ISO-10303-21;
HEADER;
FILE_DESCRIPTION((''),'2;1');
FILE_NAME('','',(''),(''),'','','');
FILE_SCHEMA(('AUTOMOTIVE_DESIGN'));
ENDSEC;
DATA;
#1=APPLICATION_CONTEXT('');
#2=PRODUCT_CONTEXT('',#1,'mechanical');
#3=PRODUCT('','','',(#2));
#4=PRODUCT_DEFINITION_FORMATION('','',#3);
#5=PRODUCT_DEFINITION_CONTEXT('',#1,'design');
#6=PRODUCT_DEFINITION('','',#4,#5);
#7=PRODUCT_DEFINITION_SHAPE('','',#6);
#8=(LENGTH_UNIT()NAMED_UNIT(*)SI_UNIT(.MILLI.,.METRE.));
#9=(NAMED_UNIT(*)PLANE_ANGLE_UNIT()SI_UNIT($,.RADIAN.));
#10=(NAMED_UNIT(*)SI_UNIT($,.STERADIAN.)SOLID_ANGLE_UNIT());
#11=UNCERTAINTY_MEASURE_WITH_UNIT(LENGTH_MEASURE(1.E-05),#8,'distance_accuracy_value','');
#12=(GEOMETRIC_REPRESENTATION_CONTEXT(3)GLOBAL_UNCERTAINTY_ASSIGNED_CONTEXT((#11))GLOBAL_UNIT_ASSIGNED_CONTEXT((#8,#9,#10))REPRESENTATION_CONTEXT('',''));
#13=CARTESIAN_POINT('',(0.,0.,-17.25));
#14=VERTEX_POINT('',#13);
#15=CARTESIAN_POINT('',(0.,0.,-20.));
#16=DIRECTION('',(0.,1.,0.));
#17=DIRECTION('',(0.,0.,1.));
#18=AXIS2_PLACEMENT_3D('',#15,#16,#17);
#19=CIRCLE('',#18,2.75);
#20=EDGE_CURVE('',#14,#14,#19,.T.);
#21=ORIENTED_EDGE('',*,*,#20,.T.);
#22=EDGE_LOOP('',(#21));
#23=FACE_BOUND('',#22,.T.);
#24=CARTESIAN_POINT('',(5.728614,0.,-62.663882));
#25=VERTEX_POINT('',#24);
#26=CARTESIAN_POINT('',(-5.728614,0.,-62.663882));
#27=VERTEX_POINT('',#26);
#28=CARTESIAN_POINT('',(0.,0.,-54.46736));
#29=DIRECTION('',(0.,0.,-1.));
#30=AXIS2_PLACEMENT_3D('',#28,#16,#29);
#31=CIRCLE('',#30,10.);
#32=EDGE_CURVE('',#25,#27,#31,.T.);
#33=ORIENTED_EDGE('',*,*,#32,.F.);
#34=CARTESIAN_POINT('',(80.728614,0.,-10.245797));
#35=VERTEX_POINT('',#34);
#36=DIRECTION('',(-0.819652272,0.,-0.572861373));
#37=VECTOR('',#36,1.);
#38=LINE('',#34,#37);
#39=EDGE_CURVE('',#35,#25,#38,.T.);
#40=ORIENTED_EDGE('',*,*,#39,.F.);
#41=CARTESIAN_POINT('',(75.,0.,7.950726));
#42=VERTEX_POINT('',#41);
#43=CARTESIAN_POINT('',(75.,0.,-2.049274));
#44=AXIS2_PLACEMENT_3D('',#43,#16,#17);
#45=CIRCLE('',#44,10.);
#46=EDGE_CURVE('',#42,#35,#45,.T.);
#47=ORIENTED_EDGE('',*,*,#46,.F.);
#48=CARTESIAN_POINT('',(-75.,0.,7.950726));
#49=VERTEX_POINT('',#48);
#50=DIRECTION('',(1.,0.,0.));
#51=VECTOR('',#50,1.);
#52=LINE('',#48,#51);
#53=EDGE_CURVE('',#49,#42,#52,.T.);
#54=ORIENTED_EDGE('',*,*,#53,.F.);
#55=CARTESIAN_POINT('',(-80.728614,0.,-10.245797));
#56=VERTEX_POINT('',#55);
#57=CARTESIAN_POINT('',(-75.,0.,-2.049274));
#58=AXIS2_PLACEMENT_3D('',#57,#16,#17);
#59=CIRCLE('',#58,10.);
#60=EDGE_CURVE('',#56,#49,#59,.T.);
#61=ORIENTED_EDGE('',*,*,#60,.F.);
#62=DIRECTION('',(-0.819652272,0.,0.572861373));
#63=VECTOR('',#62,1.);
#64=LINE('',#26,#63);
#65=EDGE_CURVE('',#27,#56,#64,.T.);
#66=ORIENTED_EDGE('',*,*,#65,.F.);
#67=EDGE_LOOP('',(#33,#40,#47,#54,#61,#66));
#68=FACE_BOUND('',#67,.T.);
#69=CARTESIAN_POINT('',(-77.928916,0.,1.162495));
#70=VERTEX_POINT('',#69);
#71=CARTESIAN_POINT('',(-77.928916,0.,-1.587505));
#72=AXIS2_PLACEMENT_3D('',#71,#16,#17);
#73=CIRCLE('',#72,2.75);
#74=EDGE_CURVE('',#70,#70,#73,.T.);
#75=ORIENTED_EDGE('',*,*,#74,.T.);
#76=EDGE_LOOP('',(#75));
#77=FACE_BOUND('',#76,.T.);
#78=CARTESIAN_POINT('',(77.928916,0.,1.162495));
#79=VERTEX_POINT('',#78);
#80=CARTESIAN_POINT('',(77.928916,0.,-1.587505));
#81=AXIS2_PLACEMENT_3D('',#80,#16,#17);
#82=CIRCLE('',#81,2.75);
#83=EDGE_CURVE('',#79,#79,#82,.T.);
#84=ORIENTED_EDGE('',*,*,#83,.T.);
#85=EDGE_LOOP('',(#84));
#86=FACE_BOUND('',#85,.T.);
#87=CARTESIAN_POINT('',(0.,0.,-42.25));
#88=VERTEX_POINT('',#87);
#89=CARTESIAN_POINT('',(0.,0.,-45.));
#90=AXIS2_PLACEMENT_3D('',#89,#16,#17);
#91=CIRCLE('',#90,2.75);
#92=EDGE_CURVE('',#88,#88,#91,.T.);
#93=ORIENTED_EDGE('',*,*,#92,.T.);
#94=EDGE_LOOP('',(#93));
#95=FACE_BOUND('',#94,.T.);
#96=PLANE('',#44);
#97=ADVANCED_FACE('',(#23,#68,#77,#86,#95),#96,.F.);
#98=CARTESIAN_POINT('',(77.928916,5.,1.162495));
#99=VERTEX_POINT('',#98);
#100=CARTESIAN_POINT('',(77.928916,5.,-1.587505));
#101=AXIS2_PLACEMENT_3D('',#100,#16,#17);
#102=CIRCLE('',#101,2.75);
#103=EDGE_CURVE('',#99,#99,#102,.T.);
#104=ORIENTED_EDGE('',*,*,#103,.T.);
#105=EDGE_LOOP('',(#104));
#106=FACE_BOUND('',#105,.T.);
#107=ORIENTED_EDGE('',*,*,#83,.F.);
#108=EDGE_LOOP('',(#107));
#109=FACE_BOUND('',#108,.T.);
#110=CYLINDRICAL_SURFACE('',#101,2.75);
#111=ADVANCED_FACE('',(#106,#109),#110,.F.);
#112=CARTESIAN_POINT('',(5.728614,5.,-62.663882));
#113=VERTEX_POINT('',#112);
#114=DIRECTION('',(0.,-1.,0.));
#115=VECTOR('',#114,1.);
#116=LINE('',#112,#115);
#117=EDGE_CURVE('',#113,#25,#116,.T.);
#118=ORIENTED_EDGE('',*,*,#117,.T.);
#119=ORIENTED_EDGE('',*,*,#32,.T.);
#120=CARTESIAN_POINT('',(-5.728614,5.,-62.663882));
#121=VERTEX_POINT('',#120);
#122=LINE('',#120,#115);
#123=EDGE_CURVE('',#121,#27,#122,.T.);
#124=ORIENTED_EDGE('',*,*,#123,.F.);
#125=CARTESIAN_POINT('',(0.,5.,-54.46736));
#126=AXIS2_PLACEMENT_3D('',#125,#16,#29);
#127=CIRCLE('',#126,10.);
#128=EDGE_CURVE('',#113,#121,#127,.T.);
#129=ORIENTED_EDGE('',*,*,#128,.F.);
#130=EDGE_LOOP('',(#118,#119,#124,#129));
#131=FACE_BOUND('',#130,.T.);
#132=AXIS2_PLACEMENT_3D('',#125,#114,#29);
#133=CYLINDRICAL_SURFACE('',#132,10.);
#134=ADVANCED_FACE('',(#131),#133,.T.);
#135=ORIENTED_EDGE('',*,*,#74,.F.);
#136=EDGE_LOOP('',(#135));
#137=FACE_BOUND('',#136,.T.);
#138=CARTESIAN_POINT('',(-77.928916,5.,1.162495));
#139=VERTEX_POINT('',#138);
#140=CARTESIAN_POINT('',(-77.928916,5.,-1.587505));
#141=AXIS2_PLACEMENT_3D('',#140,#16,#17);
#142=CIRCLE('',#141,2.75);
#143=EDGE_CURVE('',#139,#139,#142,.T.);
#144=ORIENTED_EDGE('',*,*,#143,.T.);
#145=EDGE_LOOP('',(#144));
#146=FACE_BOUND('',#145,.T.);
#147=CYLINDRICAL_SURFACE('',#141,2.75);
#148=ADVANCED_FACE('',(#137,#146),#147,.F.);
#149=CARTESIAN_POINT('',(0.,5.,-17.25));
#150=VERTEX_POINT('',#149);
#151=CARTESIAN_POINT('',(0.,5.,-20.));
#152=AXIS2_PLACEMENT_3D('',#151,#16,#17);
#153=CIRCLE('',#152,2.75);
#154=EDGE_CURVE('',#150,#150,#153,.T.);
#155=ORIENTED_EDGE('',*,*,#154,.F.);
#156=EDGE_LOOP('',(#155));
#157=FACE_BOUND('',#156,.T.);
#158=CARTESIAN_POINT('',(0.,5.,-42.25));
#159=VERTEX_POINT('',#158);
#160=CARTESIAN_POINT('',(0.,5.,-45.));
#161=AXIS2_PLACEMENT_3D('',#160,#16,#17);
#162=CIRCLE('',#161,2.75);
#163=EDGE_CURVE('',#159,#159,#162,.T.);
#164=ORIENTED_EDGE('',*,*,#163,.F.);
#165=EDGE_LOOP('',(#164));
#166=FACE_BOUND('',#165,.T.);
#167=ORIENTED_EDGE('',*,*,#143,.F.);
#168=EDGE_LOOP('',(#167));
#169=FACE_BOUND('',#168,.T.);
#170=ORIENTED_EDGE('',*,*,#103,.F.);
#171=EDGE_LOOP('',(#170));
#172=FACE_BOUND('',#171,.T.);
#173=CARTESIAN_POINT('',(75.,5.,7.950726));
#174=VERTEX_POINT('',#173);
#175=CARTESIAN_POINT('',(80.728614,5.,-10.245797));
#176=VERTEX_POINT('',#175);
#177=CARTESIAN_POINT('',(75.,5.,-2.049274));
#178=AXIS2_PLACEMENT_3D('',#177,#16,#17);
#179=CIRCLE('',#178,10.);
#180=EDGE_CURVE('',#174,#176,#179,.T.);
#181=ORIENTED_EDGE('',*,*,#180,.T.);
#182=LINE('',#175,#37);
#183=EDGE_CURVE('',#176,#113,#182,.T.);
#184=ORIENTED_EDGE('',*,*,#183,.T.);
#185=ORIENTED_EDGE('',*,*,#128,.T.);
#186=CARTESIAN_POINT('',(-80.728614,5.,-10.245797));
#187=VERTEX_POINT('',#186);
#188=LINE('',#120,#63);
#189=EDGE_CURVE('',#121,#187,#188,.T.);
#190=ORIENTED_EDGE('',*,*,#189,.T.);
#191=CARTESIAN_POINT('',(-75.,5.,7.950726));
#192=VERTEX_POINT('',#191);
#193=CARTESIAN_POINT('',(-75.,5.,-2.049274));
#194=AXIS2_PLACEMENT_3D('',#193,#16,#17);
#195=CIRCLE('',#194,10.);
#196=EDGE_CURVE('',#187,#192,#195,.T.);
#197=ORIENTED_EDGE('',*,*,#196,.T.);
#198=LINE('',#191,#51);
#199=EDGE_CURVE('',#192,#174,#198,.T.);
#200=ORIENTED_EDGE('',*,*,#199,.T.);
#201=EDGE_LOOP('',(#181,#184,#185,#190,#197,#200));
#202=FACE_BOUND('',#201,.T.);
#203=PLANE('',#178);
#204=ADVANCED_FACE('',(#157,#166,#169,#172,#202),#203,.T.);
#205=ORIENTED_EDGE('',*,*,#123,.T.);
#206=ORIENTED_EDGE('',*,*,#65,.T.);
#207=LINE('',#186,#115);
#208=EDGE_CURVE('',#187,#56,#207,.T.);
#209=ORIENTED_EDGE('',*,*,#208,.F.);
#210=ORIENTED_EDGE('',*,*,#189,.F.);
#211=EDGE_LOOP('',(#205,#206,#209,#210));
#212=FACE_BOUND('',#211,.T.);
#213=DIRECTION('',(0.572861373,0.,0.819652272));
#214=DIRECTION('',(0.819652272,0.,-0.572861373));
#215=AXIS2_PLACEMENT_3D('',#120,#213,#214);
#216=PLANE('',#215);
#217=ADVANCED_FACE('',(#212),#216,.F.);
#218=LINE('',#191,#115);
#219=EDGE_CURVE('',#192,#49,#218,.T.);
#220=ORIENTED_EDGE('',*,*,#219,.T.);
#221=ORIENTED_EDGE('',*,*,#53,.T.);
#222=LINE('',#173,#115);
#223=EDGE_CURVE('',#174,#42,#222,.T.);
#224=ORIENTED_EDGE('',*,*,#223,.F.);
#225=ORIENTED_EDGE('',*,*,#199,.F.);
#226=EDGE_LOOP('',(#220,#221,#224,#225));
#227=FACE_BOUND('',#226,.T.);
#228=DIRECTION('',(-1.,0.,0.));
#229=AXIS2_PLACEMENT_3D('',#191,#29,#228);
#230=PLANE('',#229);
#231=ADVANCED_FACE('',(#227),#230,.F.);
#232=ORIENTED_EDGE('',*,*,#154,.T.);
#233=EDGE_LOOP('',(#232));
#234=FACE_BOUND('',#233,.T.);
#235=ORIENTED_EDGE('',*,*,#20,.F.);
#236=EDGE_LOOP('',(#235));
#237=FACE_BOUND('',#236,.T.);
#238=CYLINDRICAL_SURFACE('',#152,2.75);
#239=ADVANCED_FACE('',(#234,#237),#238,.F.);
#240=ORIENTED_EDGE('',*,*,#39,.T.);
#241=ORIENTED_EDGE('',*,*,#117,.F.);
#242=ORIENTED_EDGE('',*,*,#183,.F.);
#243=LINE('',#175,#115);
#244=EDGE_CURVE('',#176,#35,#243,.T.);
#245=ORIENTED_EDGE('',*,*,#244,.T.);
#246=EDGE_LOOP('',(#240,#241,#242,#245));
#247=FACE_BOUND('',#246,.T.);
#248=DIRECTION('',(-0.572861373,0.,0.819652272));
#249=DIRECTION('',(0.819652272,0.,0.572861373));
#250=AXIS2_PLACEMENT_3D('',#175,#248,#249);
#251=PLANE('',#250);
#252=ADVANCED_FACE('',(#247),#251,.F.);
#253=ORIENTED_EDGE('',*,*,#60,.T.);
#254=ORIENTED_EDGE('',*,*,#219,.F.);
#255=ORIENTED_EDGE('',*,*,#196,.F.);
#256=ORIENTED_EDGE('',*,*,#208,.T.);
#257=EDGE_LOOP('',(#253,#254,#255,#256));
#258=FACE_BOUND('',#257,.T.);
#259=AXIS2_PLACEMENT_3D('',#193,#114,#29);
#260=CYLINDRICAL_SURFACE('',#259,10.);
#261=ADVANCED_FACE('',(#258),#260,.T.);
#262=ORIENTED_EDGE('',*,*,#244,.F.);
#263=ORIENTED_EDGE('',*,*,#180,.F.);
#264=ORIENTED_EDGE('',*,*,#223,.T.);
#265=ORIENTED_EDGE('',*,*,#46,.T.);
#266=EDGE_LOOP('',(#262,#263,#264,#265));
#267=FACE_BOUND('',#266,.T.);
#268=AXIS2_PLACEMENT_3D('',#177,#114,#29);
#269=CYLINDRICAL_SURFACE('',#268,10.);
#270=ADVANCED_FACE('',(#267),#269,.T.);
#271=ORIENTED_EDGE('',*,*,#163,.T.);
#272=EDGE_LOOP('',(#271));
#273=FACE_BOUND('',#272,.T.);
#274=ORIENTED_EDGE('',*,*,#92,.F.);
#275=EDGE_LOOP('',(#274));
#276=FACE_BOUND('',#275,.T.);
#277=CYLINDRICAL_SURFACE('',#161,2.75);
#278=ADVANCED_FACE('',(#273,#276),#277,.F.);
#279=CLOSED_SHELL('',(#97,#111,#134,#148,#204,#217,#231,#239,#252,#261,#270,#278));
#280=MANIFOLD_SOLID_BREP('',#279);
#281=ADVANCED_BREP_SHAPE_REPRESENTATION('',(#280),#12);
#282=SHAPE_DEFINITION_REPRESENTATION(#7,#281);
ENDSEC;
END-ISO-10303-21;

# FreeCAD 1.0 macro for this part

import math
import FreeCAD as App
import Part
import Sketcher
Q = App.Units.Quantity

doc = App.newDocument("Part")
params = doc.addObject("Spreadsheet::Sheet", "Params")
for row, (alias, value) in enumerate([
    ("sketch1_radius", "10 mm"),
    ("sketch1_width", "150 mm"),
    ("pad1_length", "5 mm"),
    ("sketch2_diameter", "5.5 mm"),
    ("hole_diameter", "5.5 mm"),
    ("sketch3_diameter", "5.5 mm"),
    ("hole2_diameter", "5.5 mm"),
], start=1):
    params.set(f"A{row}", alias)
    params.set(f"B{row}", "=" + value)
    params.setAlias(f"B{row}", alias)

body = doc.addObject("PartDesign::Body", "Body")

# Sketch on XZ plane
sketch1 = doc.addObject("Sketcher::SketchObject", "Sketch")
body.addObject(sketch1)
sketch1.AttachmentSupport = (doc.XZ_Plane, [""])
sketch1.MapMode = "FlatFace"
sketch1.addGeometry(Part.LineSegment(App.Vector(-6, -63, 0), App.Vector(-81, -10, 0)), False)
sketch1.addGeometry(Part.ArcOfCircle(Part.Circle(App.Vector(-75, -2, 0), App.Vector(0, 0, 1), 10), math.radians(90), math.radians(235)), False)
sketch1.addGeometry(Part.LineSegment(App.Vector(-75, 8, 0), App.Vector(75, 8, 0)), False)
sketch1.addGeometry(Part.ArcOfCircle(Part.Circle(App.Vector(75, -2, 0), App.Vector(0, 0, 1), 10), math.radians(-55), math.radians(90)), False)
sketch1.addGeometry(Part.LineSegment(App.Vector(81, -10, 0), App.Vector(6, -63, 0)), False)
sketch1.addGeometry(Part.ArcOfCircle(Part.Circle(App.Vector(0, -54, 0), App.Vector(0, 0, 1), 10), math.radians(-125), math.radians(-55)), False)
sketch1.addConstraint(Sketcher.Constraint("Tangent", 0, 2, 1, 2))
sketch1.addConstraint(Sketcher.Constraint("Tangent", 1, 1, 2, 1))
sketch1.addConstraint(Sketcher.Constraint("Tangent", 2, 2, 3, 2))
sketch1.addConstraint(Sketcher.Constraint("Tangent", 3, 1, 4, 1))
sketch1.addConstraint(Sketcher.Constraint("Tangent", 4, 2, 5, 2))
sketch1.addConstraint(Sketcher.Constraint("Tangent", 5, 1, 0, 1))
sketch1.addConstraint(Sketcher.Constraint("Horizontal", 2))
sketch1.addConstraint(Sketcher.Constraint("Equal", 1, 3))
sketch1.addConstraint(Sketcher.Constraint("Equal", 3, 5))
sketch1.addConstraint(Sketcher.Constraint("Symmetric", 0, 2, 3, 1, -2))
sketch1.addConstraint(Sketcher.Constraint("Radius", 1, Q("10 mm")))
sketch1.addConstraint(Sketcher.Constraint("DistanceX", 2, 1, 2, 2, Q("150 mm")))
sketch1.addConstraint(Sketcher.Constraint("Angle", 0, Q("145.05 deg")))
sketch1.addConstraint(Sketcher.Constraint("DistanceY", 5, 3, -1, 1, Q("54.46736 mm")))
sketch1.setExpression("Constraints[10]", "Params.sketch1_radius")
sketch1.setExpression("Constraints[11]", "Params.sketch1_width")
pad1 = doc.addObject("PartDesign::Pad", "Pad")
body.addObject(pad1)
pad1.Profile = sketch1
pad1.setExpression("Length", "Params.pad1_length")
pad1.Reversed = True

# Sketch on XZ plane
sketch2 = doc.addObject("Sketcher::SketchObject", "Sketch001")
body.addObject(sketch2)
sketch2.AttachmentSupport = (doc.XZ_Plane, [""])
sketch2.MapMode = "FlatFace"
sketch2.AttachmentOffset = App.Placement(App.Vector(0, 0, -5), App.Rotation())
sketch2.addGeometry(Part.Circle(App.Vector(0, -45, 0), App.Vector(0, 0, 1), 2.8), False)
sketch2.addGeometry(Part.Circle(App.Vector(0, -20, 0), App.Vector(0, 0, 1), 2.8), False)
sketch2.addConstraint(Sketcher.Constraint("Equal", 0, 1))
sketch2.addConstraint(Sketcher.Constraint("PointOnObject", 0, 3, -2))
sketch2.addConstraint(Sketcher.Constraint("PointOnObject", 1, 3, -2))
sketch2.addConstraint(Sketcher.Constraint("Diameter", 0, Q("5.5 mm")))
sketch2.addConstraint(Sketcher.Constraint("DistanceY", 0, 3, -1, 1, Q("45 mm")))
sketch2.addConstraint(Sketcher.Constraint("DistanceY", 1, 3, -1, 1, Q("20 mm")))
sketch2.setExpression("Constraints[3]", "Params.sketch2_diameter")
doc.recompute()
hole = doc.addObject("PartDesign::Hole", "Hole")
body.addObject(hole)
hole.Profile = sketch2
hole.ThreadType = "None"
hole.setExpression("Diameter", "Params.hole_diameter")
hole.DepthType = "ThroughAll"
hole.Reversed = True

# Sketch on XZ plane
sketch3 = doc.addObject("Sketcher::SketchObject", "Sketch002")
body.addObject(sketch3)
sketch3.AttachmentSupport = (doc.XZ_Plane, [""])
sketch3.MapMode = "FlatFace"
sketch3.AttachmentOffset = App.Placement(App.Vector(0, 0, -5), App.Rotation())
sketch3.addGeometry(Part.Circle(App.Vector(-77.9, -1.6, 0), App.Vector(0, 0, 1), 2.8), False)
sketch3.addConstraint(Sketcher.Constraint("Diameter", 0, Q("5.5 mm")))
sketch3.addConstraint(Sketcher.Constraint("DistanceX", 0, 3, -1, 1, Q("77.928916 mm")))
sketch3.addConstraint(Sketcher.Constraint("DistanceY", 0, 3, -1, 1, Q("1.587505 mm")))
sketch3.setExpression("Constraints[0]", "Params.sketch3_diameter")
doc.recompute()
hole2 = doc.addObject("PartDesign::Hole", "Hole001")
body.addObject(hole2)
hole2.Profile = sketch3
hole2.ThreadType = "None"
hole2.setExpression("Diameter", "Params.hole2_diameter")
hole2.DepthType = "ThroughAll"
hole2.Reversed = True
doc.recompute()

mirrored = doc.addObject("PartDesign::Mirrored", "Mirrored")
body.addObject(mirrored)
mirrored.Originals = [hole2]
mirrored.MirrorPlane = (doc.YZ_Plane, [""])
body.Tip = mirrored

doc.recompute()
